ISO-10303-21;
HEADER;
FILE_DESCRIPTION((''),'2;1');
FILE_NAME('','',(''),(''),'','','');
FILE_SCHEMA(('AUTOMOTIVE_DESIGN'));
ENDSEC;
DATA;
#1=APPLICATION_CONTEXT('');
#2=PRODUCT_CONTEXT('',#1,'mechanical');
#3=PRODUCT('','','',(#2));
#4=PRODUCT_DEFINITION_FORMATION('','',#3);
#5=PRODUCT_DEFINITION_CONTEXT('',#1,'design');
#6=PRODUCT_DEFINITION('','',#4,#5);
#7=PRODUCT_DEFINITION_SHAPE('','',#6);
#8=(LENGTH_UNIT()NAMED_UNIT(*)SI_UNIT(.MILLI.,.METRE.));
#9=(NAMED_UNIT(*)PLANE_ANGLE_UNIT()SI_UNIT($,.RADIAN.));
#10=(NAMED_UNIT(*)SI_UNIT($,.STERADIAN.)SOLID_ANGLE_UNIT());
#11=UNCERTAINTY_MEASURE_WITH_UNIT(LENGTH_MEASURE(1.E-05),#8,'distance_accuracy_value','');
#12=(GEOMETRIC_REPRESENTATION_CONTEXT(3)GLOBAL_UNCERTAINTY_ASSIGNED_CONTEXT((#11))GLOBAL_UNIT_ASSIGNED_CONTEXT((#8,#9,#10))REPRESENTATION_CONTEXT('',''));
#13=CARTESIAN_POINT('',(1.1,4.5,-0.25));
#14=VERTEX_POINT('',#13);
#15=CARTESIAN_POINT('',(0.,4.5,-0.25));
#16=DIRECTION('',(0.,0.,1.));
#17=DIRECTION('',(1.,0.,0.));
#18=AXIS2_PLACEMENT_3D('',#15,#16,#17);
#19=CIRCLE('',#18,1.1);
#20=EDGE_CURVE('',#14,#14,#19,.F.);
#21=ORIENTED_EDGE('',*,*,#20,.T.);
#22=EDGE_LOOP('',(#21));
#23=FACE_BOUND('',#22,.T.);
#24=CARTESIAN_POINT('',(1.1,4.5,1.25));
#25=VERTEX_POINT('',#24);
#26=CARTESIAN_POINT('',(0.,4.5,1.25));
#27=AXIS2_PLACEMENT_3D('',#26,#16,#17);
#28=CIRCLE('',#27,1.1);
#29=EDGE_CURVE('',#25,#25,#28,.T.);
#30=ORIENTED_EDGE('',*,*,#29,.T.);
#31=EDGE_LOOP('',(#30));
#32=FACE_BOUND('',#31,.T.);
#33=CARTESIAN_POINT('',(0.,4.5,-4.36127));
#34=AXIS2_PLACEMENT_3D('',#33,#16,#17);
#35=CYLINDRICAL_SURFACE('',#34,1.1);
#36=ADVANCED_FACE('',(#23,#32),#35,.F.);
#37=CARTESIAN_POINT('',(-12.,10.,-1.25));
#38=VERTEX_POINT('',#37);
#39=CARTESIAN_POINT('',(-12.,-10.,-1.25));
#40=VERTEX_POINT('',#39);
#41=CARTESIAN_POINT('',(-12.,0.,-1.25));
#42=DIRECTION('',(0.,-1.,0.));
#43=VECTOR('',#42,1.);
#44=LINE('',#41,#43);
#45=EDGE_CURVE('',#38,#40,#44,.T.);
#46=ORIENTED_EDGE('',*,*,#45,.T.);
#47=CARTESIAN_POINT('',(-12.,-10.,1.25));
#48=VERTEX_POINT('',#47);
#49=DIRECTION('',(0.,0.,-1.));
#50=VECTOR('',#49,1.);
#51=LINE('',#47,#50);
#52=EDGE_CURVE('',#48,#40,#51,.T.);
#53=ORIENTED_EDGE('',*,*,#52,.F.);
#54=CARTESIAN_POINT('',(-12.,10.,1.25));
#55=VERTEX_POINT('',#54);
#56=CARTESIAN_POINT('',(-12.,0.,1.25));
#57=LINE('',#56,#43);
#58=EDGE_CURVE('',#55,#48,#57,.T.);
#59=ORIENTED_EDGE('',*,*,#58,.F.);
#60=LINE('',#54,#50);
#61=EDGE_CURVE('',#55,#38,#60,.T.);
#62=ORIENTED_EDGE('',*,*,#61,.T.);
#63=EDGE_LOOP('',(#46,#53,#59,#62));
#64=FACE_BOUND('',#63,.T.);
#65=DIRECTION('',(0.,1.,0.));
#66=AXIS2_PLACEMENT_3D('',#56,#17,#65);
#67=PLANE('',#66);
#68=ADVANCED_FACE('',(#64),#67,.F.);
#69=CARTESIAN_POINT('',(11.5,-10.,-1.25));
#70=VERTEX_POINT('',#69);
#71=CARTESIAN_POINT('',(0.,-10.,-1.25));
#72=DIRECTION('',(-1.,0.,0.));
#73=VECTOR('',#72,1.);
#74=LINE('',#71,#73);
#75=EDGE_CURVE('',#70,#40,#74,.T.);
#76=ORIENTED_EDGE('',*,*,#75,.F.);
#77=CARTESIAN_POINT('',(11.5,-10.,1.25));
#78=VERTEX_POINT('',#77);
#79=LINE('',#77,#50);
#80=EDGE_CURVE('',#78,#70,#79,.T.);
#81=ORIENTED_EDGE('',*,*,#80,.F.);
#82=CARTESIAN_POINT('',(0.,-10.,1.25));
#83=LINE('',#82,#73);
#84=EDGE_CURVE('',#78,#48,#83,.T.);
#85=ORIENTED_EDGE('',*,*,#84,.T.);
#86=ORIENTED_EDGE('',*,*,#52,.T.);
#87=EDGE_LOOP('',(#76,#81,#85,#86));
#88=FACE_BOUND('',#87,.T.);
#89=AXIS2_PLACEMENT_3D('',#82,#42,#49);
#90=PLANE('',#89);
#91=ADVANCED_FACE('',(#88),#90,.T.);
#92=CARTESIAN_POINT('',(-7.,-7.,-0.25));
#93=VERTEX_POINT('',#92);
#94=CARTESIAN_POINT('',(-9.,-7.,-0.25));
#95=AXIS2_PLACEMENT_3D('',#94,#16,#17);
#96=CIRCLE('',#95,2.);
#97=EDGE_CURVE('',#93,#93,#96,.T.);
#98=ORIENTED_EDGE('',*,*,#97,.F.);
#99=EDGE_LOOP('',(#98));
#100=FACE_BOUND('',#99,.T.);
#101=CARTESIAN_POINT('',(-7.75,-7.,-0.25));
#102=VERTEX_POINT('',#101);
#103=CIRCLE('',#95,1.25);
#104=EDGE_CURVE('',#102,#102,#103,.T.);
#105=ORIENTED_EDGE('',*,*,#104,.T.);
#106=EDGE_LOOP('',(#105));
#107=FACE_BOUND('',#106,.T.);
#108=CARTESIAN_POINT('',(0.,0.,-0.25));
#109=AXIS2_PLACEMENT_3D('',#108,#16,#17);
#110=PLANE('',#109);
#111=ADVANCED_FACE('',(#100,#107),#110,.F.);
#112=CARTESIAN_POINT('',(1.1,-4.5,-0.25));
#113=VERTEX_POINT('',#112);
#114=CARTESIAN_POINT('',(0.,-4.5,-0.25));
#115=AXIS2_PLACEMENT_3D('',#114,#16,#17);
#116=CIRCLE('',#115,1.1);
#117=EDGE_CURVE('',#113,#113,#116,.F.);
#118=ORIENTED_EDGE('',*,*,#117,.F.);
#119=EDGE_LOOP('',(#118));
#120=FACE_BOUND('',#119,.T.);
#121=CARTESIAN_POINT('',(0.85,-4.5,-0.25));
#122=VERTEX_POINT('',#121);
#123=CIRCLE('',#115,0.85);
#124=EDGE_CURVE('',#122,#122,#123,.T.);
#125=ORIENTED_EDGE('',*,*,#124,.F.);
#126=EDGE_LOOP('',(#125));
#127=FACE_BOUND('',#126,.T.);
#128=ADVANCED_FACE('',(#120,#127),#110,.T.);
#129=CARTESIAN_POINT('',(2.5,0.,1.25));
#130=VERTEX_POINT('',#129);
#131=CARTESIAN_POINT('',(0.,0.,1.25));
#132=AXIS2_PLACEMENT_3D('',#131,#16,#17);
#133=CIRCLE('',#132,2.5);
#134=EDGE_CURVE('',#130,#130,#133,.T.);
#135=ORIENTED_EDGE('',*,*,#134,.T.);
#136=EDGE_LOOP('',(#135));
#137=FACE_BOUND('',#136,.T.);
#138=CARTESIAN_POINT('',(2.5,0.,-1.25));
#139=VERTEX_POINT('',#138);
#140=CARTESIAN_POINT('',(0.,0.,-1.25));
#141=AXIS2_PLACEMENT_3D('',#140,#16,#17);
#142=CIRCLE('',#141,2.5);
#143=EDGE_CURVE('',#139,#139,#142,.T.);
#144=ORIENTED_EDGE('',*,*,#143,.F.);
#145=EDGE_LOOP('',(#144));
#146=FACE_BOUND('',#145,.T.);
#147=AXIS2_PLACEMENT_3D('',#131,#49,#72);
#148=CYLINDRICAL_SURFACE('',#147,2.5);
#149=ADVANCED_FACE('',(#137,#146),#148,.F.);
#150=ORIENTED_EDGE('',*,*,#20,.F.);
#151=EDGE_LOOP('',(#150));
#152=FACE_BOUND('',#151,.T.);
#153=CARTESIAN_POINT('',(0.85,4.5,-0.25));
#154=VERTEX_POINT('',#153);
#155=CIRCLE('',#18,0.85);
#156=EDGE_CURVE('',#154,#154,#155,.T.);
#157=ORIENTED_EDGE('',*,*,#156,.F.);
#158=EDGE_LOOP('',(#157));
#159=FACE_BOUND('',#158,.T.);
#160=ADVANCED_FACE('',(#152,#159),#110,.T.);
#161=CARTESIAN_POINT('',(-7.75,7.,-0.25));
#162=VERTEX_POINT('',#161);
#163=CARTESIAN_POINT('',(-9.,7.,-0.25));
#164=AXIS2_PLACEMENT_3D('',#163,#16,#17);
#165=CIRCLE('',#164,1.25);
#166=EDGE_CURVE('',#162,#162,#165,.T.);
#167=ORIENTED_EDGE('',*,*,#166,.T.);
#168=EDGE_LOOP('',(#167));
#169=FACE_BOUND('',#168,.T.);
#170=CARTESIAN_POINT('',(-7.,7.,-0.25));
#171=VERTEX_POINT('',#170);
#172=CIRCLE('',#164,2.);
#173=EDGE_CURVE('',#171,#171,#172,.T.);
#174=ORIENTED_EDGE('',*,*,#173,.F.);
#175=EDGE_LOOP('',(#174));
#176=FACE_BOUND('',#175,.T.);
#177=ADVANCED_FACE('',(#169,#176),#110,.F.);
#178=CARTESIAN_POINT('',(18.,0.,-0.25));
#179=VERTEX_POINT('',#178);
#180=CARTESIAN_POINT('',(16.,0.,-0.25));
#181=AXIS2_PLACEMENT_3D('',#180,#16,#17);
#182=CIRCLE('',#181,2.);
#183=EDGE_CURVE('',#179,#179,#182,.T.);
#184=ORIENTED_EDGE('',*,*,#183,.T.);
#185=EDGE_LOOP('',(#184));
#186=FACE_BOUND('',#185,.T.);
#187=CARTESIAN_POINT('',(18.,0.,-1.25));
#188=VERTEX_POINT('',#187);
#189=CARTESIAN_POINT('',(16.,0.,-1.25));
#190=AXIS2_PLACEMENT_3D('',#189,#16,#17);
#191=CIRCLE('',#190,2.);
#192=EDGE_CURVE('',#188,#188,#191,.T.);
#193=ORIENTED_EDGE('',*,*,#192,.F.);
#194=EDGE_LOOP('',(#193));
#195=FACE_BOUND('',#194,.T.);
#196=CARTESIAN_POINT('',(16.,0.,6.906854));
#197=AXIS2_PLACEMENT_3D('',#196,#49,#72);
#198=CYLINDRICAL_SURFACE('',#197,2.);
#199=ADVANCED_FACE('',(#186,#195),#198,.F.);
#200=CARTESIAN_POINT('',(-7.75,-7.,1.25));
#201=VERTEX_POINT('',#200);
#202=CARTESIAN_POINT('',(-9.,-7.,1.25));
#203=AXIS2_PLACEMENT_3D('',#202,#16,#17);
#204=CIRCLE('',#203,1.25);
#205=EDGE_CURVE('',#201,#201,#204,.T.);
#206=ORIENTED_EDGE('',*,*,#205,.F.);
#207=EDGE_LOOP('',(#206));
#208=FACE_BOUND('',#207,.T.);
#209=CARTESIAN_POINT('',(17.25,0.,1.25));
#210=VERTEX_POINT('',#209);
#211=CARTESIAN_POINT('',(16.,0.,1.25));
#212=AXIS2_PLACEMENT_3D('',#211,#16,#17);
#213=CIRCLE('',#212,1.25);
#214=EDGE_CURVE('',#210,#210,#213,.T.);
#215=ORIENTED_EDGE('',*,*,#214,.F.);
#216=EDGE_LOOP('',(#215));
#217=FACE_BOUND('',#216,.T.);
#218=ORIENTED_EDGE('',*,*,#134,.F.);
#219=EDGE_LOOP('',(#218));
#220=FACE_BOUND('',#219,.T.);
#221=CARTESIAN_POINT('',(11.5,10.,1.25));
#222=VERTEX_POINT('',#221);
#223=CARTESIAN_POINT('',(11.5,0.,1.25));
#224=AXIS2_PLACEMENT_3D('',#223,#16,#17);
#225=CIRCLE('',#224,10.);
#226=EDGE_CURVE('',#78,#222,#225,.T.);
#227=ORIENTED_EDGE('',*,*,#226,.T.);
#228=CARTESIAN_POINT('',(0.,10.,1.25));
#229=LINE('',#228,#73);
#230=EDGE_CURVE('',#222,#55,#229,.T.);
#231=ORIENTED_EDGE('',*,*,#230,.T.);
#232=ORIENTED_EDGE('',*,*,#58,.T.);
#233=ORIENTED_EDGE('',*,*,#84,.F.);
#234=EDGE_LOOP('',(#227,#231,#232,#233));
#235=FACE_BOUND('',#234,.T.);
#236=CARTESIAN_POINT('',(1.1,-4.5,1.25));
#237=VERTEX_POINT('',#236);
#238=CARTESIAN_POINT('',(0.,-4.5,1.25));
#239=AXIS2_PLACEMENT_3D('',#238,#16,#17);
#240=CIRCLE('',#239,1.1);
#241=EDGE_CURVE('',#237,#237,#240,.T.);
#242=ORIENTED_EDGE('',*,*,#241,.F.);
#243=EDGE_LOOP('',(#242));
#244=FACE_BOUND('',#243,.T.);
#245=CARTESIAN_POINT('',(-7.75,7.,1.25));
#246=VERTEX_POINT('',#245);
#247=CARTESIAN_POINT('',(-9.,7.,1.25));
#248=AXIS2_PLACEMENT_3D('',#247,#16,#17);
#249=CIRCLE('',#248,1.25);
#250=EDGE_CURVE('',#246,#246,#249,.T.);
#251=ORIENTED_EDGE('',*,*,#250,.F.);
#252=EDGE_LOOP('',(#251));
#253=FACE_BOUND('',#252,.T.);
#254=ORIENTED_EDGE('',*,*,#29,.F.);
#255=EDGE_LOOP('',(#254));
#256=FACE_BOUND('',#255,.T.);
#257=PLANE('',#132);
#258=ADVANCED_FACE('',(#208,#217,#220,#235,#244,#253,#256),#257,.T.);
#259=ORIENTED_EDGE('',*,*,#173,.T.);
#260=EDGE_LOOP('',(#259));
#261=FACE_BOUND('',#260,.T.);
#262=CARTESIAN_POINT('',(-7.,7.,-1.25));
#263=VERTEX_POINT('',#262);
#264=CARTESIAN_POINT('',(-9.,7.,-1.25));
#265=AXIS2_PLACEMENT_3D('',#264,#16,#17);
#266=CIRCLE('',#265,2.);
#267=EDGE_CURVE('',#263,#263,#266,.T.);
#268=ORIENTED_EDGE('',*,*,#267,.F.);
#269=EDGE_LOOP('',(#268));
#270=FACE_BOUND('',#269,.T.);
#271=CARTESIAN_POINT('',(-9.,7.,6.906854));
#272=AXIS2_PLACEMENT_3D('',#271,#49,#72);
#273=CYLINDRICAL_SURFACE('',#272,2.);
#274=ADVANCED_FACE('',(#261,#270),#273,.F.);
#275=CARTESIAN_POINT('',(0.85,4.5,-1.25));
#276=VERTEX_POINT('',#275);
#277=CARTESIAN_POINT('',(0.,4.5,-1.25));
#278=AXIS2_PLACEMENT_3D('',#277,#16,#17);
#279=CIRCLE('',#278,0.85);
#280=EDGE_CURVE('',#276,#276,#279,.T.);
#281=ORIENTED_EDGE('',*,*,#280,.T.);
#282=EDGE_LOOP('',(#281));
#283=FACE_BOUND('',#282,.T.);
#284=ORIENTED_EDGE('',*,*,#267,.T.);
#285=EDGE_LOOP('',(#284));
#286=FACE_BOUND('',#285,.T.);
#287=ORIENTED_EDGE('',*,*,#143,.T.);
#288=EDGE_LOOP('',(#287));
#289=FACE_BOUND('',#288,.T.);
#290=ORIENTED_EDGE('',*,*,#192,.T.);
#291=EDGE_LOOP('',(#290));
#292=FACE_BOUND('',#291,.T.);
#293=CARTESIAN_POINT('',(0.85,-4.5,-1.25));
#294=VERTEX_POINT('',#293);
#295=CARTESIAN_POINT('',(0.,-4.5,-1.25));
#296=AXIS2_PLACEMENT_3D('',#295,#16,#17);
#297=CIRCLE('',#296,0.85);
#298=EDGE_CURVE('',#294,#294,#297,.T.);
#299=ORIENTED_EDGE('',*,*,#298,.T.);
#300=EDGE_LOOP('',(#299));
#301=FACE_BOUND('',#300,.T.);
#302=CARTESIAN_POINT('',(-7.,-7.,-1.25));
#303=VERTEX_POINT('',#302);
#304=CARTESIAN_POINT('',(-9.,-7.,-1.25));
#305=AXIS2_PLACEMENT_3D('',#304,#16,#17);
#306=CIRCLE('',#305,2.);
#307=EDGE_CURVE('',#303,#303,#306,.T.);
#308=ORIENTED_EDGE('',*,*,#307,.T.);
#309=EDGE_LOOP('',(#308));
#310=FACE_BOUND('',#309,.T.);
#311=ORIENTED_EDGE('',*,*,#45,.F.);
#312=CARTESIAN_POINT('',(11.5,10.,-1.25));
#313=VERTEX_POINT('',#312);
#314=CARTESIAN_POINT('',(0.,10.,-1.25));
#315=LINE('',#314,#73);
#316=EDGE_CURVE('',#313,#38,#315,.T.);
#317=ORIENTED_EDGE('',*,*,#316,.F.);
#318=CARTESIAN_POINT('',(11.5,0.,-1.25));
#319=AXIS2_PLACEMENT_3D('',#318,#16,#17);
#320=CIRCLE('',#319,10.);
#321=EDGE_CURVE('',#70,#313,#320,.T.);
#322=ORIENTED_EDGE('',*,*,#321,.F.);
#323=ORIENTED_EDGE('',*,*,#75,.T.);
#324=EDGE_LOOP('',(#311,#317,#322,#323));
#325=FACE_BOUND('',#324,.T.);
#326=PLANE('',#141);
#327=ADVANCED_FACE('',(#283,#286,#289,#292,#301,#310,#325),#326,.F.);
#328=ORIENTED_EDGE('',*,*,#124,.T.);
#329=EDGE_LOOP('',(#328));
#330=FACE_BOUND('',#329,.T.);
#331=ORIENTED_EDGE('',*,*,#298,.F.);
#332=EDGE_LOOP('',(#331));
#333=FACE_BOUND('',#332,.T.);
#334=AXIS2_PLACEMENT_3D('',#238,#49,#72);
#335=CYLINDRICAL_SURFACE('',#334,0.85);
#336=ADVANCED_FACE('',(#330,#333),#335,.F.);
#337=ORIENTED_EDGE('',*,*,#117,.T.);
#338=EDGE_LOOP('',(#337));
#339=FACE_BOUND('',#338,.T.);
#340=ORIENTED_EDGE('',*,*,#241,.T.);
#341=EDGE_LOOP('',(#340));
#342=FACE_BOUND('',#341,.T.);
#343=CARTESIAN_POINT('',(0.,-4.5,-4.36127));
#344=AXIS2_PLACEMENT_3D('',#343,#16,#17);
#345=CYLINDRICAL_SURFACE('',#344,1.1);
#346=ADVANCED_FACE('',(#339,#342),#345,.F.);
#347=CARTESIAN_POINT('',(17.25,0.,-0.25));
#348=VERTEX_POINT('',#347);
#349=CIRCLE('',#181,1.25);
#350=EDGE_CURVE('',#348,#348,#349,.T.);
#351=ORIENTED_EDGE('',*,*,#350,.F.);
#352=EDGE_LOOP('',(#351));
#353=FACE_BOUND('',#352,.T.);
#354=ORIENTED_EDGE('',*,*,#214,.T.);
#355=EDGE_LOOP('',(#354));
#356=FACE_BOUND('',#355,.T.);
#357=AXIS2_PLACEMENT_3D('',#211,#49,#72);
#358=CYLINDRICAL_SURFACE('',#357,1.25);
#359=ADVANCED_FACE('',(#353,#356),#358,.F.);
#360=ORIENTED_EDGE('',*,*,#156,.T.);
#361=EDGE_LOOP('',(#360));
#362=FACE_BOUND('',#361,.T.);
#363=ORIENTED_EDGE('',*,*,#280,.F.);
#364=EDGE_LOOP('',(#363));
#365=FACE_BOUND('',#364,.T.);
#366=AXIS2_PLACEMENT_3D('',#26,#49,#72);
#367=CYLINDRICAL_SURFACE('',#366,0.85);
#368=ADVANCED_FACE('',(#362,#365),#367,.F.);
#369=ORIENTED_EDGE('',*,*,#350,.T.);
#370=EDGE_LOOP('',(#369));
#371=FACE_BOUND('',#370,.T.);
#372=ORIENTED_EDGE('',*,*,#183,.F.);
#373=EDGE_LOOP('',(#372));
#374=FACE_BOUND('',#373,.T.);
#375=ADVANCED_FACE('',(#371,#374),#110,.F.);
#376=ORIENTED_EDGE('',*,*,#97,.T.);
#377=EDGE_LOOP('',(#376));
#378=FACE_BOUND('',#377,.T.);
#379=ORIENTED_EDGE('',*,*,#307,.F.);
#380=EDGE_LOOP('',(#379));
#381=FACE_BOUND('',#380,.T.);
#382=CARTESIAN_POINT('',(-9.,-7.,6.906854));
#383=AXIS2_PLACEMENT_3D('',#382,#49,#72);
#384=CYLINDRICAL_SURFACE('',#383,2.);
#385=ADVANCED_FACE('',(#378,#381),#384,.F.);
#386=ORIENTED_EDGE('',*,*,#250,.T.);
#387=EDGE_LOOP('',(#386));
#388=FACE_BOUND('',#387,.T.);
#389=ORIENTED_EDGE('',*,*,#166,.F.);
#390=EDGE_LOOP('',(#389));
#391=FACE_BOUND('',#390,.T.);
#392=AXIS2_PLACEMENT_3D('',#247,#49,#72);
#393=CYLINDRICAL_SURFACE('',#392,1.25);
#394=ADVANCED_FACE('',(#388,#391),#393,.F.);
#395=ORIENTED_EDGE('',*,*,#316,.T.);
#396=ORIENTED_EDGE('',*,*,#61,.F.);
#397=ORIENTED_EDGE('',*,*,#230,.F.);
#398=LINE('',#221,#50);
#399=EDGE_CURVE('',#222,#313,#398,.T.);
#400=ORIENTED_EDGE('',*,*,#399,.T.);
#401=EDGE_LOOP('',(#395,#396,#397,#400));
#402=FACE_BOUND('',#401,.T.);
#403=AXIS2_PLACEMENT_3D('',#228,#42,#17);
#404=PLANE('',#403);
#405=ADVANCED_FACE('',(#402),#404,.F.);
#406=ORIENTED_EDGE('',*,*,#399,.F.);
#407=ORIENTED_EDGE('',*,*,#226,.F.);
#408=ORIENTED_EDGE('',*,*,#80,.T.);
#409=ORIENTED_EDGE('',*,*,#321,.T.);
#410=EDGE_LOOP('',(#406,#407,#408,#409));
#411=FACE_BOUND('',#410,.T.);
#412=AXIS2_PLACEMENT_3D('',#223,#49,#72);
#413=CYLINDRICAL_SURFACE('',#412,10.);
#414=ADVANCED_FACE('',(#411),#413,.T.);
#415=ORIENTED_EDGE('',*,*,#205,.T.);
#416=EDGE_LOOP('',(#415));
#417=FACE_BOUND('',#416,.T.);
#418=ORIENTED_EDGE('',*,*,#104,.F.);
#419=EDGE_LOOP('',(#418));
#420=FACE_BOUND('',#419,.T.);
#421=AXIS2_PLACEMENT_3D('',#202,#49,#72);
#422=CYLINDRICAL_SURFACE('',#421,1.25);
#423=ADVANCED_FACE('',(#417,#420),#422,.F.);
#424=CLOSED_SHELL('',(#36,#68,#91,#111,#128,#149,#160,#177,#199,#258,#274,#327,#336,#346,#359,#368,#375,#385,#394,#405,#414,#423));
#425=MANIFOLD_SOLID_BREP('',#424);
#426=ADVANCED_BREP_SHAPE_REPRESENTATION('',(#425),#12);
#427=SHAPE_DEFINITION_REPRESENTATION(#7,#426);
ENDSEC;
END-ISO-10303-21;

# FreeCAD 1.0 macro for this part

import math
import FreeCAD as App
import Part
import Sketcher

doc = App.newDocument("Part")
params = doc.addObject("Spreadsheet::Sheet", "Params")
for row, (alias, value) in enumerate([
    ("sketch1_diameter", "5 mm"),
    ("sketch1_radius", "10 mm"),
    ("sketch1_diameter2", "2.5 mm"),
    ("sketch1_diameter3", "1.7 mm"),
    ("sketch1_width", "23.5 mm"),
    ("pad1_length", "2.5 mm"),
    ("sketch2_diameter", "2.2 mm"),
    ("pocket1_length", "1.5 mm"),
    ("sketch3_diameter", "4 mm"),
    ("pocket2_length", "1 mm"),
], start=1):
    params.set(f"A{row}", alias)
    params.set(f"B{row}", "=" + value)
    params.setAlias(f"B{row}", alias)

body = doc.addObject("PartDesign::Body", "Body")

# Sketch on XY plane
sketch1 = body.newObject("Sketcher::SketchObject", "Sketch")
sketch1.AttachmentSupport = (doc.getObject("XY_Plane"), [""])
sketch1.MapMode = "FlatFace"
sketch1.addGeometry(Part.LineSegment(App.Vector(11.5, 10, 0), App.Vector(-12, 10, 0)), False)
sketch1.addGeometry(Part.LineSegment(App.Vector(-12, 10, 0), App.Vector(-12, -10, 0)), False)
sketch1.addGeometry(Part.LineSegment(App.Vector(-12, -10, 0), App.Vector(11.5, -10, 0)), False)
sketch1.addGeometry(Part.ArcOfCircle(Part.Circle(App.Vector(11.5, 0, 0), App.Vector(0, 0, 1), 10), math.radians(-90), math.radians(90)), False)
sketch1.addGeometry(Part.Circle(App.Vector(-9, -7, 0), App.Vector(0, 0, 1), 1.25), False)
sketch1.addGeometry(Part.Circle(App.Vector(0, -4.5, 0), App.Vector(0, 0, 1), 0.85), False)
sketch1.addGeometry(Part.Circle(App.Vector(0, 0, 0), App.Vector(0, 0, 1), 2.5), False)
sketch1.addGeometry(Part.Circle(App.Vector(-9, 7, 0), App.Vector(0, 0, 1), 1.25), False)
sketch1.addGeometry(Part.Circle(App.Vector(0, 4.5, 0), App.Vector(0, 0, 1), 0.85), False)
sketch1.addGeometry(Part.Circle(App.Vector(16, 0, 0), App.Vector(0, 0, 1), 1.25), False)
sketch1.addConstraint(Sketcher.Constraint("Coincident", 0, 2, 1, 1))
sketch1.addConstraint(Sketcher.Constraint("Coincident", 1, 2, 2, 1))
sketch1.addConstraint(Sketcher.Constraint("Tangent", 2, 2, 3, 1))
sketch1.addConstraint(Sketcher.Constraint("Tangent", 3, 2, 0, 1))
sketch1.addConstraint(Sketcher.Constraint("Horizontal", 0))
sketch1.addConstraint(Sketcher.Constraint("Vertical", 1))
sketch1.addConstraint(Sketcher.Constraint("Horizontal", 2))
sketch1.addConstraint(Sketcher.Constraint("Coincident", 6, 3, -1, 1))
sketch1.addConstraint(Sketcher.Constraint("Equal", 4, 7))
sketch1.addConstraint(Sketcher.Constraint("Equal", 5, 8))
sketch1.addConstraint(Sketcher.Constraint("Equal", 7, 9))
sketch1.addConstraint(Sketcher.Constraint("Symmetric", 5, 3, 8, 3, -1, 1))
sketch1.addConstraint(Sketcher.Constraint("Symmetric", 4, 3, 7, 3, -1))
sketch1.addConstraint(Sketcher.Constraint("PointOnObject", 3, 3, -1))
sketch1.addConstraint(Sketcher.Constraint("PointOnObject", 5, 3, -2))
sketch1.addConstraint(Sketcher.Constraint("PointOnObject", 9, 3, -1))
sketch1.addConstraint(Sketcher.Constraint("Diameter", 6, 5.0))
sketch1.addConstraint(Sketcher.Constraint("Radius", 3, 10.0))
sketch1.addConstraint(Sketcher.Constraint("Diameter", 4, 2.5))
sketch1.addConstraint(Sketcher.Constraint("Diameter", 5, 1.7))
sketch1.addConstraint(Sketcher.Constraint("DistanceX", 0, 2, 0, 1, 23.5))
sketch1.addConstraint(Sketcher.Constraint("DistanceX", 4, 3, -1, 1, 9.0))
sketch1.addConstraint(Sketcher.Constraint("DistanceY", 4, 3, -1, 1, 7.0))
sketch1.addConstraint(Sketcher.Constraint("DistanceX", -1, 1, 9, 3, 16.0))
sketch1.addConstraint(Sketcher.Constraint("DistanceX", 0, 2, -1, 1, 12.0))
sketch1.addConstraint(Sketcher.Constraint("DistanceY", 5, 3, 8, 3, 9.0))
sketch1.setExpression("Constraints[16]", "Params.sketch1_diameter")
sketch1.setExpression("Constraints[17]", "Params.sketch1_radius")
sketch1.setExpression("Constraints[18]", "Params.sketch1_diameter2")
sketch1.setExpression("Constraints[19]", "Params.sketch1_diameter3")
sketch1.setExpression("Constraints[20]", "Params.sketch1_width")
pad1 = body.newObject("PartDesign::Pad", "Pad")
pad1.Profile = sketch1
pad1.setExpression("Length", "Params.pad1_length")
pad1.Midplane = True

# Sketch on XY plane
sketch2 = body.newObject("Sketcher::SketchObject", "Sketch001")
sketch2.AttachmentSupport = (doc.getObject("XY_Plane"), [""])
sketch2.MapMode = "FlatFace"
sketch2.AttachmentOffset = App.Placement(App.Vector(0, 0, 1.25), App.Rotation())
sketch2.addGeometry(Part.Circle(App.Vector(0, 4.5, 0), App.Vector(0, 0, 1), 1.1), False)
sketch2.addGeometry(Part.Circle(App.Vector(0, -4.5, 0), App.Vector(0, 0, 1), 1.1), False)
sketch2.addConstraint(Sketcher.Constraint("Equal", 0, 1))
sketch2.addConstraint(Sketcher.Constraint("Symmetric", 0, 3, 1, 3, -1, 1))
sketch2.addConstraint(Sketcher.Constraint("PointOnObject", 0, 3, -2))
sketch2.addConstraint(Sketcher.Constraint("Diameter", 0, 2.2))
sketch2.addConstraint(Sketcher.Constraint("DistanceY", 1, 3, 0, 3, 9.0))
sketch2.setExpression("Constraints[3]", "Params.sketch2_diameter")
pocket1 = body.newObject("PartDesign::Pocket", "Pocket")
pocket1.Profile = sketch2
pocket1.setExpression("Length", "Params.pocket1_length")

# Sketch on XY plane
sketch3 = body.newObject("Sketcher::SketchObject", "Sketch002")
sketch3.AttachmentSupport = (doc.getObject("XY_Plane"), [""])
sketch3.MapMode = "FlatFace"
sketch3.AttachmentOffset = App.Placement(App.Vector(0, 0, -1.25), App.Rotation())
sketch3.addGeometry(Part.Circle(App.Vector(-9, 7, 0), App.Vector(0, 0, 1), 2), False)
sketch3.addGeometry(Part.Circle(App.Vector(-9, -7, 0), App.Vector(0, 0, 1), 2), False)
sketch3.addGeometry(Part.Circle(App.Vector(16, 0, 0), App.Vector(0, 0, 1), 2), False)
sketch3.addConstraint(Sketcher.Constraint("Equal", 0, 1))
sketch3.addConstraint(Sketcher.Constraint("Equal", 1, 2))
sketch3.addConstraint(Sketcher.Constraint("Symmetric", 0, 3, 1, 3, -1))
sketch3.addConstraint(Sketcher.Constraint("PointOnObject", 2, 3, -1))
sketch3.addConstraint(Sketcher.Constraint("Diameter", 0, 4.0))
sketch3.addConstraint(Sketcher.Constraint("DistanceX", 0, 3, -1, 1, 9.0))
sketch3.addConstraint(Sketcher.Constraint("DistanceY", -1, 1, 0, 3, 7.0))
sketch3.addConstraint(Sketcher.Constraint("DistanceX", -1, 1, 2, 3, 16.0))
sketch3.setExpression("Constraints[4]", "Params.sketch3_diameter")
pocket2 = body.newObject("PartDesign::Pocket", "Pocket001")
pocket2.Profile = sketch3
pocket2.setExpression("Length", "Params.pocket2_length")
pocket2.Reversed = True

doc.recompute()
